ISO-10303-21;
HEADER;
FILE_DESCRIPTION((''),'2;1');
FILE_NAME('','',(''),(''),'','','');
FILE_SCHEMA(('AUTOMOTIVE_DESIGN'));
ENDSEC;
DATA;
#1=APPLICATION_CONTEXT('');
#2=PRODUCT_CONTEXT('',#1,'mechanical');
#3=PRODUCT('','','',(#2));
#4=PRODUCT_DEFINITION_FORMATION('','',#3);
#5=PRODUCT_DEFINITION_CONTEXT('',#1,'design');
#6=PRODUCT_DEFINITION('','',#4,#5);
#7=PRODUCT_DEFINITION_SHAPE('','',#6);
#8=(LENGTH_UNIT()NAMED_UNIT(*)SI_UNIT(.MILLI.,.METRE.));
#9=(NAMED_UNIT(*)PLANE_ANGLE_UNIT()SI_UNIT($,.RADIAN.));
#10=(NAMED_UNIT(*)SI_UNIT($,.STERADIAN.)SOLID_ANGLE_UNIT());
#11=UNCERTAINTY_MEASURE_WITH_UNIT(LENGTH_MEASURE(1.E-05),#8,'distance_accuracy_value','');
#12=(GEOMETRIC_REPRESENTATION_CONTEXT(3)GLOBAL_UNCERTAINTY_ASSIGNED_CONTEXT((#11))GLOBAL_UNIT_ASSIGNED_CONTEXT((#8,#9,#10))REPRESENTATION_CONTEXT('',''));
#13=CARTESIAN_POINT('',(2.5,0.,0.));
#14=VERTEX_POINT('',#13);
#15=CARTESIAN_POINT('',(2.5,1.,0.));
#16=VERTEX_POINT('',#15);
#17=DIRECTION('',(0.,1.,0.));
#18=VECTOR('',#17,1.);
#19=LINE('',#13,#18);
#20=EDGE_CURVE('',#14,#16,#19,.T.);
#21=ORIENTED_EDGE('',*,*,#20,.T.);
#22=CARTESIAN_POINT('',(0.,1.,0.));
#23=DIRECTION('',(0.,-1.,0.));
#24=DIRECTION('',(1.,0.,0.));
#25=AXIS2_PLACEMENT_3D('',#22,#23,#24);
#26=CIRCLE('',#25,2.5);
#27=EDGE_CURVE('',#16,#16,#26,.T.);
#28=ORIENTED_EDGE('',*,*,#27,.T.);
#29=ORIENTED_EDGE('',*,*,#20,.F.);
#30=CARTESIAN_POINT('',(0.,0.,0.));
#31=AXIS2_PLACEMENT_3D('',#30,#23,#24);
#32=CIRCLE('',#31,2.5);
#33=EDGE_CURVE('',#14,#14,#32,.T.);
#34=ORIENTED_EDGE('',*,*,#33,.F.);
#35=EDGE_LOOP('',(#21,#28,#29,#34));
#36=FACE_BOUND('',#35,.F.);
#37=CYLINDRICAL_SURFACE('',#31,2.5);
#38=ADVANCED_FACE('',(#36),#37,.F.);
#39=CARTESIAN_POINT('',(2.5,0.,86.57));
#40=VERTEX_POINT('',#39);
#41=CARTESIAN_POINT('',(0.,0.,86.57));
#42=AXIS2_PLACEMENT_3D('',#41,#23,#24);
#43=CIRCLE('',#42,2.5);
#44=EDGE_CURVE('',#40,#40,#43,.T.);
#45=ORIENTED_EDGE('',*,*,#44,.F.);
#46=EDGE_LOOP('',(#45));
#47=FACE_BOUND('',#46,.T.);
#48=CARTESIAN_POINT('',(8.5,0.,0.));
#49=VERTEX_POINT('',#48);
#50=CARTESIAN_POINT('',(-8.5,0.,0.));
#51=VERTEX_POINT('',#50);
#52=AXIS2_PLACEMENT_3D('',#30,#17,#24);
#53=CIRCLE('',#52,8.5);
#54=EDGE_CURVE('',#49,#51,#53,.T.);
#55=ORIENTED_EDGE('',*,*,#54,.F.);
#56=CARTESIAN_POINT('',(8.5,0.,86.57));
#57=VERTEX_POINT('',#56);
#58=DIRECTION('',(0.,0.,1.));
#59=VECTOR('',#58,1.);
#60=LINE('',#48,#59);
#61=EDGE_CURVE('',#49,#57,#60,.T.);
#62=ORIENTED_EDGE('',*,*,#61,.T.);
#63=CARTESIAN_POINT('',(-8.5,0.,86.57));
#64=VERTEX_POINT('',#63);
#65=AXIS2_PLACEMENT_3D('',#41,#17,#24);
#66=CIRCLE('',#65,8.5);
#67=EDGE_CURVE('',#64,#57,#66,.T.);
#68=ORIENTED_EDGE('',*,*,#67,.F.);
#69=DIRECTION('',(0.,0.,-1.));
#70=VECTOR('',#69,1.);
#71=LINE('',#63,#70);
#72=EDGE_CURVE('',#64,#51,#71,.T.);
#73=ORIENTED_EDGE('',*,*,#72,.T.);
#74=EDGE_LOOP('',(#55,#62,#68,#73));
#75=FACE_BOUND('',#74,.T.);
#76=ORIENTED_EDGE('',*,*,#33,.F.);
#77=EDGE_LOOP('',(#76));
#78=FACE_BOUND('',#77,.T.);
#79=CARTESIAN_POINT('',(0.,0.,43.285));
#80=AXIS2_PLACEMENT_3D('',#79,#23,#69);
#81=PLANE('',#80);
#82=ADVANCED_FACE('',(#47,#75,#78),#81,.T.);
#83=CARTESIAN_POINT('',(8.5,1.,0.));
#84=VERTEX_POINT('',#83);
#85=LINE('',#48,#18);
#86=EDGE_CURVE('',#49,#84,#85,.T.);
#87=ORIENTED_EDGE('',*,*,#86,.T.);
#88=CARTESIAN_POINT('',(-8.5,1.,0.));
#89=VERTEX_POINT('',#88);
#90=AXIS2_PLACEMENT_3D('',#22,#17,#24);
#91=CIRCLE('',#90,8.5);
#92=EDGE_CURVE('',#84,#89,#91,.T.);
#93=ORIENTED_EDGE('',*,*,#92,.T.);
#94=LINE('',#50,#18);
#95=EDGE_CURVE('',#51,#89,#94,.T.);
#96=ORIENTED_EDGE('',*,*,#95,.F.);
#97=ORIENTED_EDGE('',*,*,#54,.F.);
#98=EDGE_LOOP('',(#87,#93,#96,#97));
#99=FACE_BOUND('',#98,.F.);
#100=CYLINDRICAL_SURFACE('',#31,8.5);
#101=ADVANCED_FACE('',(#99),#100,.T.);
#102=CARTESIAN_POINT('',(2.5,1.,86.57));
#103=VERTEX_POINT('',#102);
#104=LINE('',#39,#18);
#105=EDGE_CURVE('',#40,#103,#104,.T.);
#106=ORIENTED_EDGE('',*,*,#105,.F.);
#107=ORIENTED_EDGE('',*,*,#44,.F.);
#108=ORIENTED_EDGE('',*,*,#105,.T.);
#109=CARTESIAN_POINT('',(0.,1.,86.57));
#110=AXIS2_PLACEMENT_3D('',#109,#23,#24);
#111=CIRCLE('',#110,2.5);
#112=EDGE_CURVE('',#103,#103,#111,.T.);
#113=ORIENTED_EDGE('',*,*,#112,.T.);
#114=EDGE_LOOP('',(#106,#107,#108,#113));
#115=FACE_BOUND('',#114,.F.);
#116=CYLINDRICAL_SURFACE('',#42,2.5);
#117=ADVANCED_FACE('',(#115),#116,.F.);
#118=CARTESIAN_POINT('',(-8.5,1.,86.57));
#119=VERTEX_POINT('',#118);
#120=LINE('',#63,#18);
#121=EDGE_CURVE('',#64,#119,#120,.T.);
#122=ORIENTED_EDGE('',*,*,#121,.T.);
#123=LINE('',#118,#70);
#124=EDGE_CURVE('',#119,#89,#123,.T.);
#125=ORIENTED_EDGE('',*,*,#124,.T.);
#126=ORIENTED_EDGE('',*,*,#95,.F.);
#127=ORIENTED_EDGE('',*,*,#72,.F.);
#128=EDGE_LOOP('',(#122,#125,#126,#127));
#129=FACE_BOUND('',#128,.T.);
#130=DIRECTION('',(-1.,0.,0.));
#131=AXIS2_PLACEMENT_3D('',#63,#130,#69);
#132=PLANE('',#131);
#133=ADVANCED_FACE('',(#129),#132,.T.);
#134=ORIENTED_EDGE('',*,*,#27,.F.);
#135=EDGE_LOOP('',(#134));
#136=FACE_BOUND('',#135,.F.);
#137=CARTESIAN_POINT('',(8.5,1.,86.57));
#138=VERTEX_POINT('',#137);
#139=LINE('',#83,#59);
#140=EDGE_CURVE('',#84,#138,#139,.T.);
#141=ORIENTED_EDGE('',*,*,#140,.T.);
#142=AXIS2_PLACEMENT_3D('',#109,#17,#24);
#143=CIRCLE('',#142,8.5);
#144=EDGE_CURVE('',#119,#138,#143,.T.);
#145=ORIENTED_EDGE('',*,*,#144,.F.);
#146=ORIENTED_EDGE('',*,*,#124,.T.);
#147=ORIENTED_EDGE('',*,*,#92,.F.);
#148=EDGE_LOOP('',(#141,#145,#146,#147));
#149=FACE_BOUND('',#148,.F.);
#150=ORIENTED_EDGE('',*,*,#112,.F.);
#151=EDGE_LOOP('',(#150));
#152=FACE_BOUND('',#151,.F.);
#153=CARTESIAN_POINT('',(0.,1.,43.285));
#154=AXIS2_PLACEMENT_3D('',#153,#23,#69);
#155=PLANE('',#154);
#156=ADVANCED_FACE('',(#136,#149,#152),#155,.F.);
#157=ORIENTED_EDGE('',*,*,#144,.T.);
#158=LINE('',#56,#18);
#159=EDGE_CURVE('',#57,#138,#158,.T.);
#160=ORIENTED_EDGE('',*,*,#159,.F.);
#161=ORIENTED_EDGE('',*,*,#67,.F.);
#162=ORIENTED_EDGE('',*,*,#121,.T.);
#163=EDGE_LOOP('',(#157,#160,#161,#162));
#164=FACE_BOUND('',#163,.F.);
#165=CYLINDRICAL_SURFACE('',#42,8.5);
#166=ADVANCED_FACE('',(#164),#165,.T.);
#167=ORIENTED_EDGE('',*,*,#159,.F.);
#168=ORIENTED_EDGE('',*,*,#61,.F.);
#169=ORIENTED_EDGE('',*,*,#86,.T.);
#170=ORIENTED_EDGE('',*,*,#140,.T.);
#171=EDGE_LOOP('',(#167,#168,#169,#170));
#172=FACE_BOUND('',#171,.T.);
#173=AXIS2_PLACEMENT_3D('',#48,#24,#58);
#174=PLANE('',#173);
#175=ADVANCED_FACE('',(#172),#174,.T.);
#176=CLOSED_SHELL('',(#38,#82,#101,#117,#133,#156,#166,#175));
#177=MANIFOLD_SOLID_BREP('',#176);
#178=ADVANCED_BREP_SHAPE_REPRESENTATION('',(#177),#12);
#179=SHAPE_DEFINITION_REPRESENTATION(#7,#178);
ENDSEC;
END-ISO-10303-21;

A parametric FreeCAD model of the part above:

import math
import FreeCAD as App
import Part
import Sketcher

doc = App.newDocument("Part")
body = doc.addObject("PartDesign::Body", "Body")

sketch1 = body.newObject("Sketcher::SketchObject", "Sketch")
sketch1.AttachmentSupport = (doc.getObject("XZ_Plane"), [""])
sketch1.MapMode = "FlatFace"
sketch1.addGeometry([
    Part.ArcOfCircle(Part.Circle(App.Vector(0, 0, 0), App.Vector(0, 0, 1), 8.5), math.radians(180), math.radians(360)),
    Part.LineSegment(App.Vector(8.5, 0, 0), App.Vector(8.5, 86.6, 0)),
    Part.ArcOfCircle(Part.Circle(App.Vector(0, 86.6, 0), App.Vector(0, 0, 1), 8.5), math.radians(0), math.radians(180)),
    Part.LineSegment(App.Vector(-8.5, 86.6, 0), App.Vector(-8.5, 0, 0)),
    Part.Circle(App.Vector(0, 0, 0), App.Vector(0, 0, 1), 2.5),
    Part.Circle(App.Vector(0, 86.6, 0), App.Vector(0, 0, 1), 2.5),
], False)
sketch1.addConstraint([
    Sketcher.Constraint("Tangent", 0, 2, 1, 1),
    Sketcher.Constraint("Tangent", 1, 2, 2, 1),
    Sketcher.Constraint("Tangent", 2, 2, 3, 1),
    Sketcher.Constraint("Tangent", 3, 2, 0, 1),
    Sketcher.Constraint("Vertical", 1),
    Sketcher.Constraint("Vertical", 3),
    Sketcher.Constraint("Coincident", 0, 3, -1, 1),
    Sketcher.Constraint("Coincident", 4, 3, -1, 1),
    Sketcher.Constraint("Coincident", 5, 3, 2, 3),
    Sketcher.Constraint("Equal", 4, 5),
    Sketcher.Constraint("Diameter", 4, 5.0),
    Sketcher.Constraint("Radius", 0, 8.5),
    Sketcher.Constraint("DistanceY", 1, 1, 1, 2, 86.57),
])
pad1 = body.newObject("PartDesign::Pad", "Pad")
pad1.Profile = sketch1
pad1.Length = 1
pad1.Reversed = True

doc.recompute()
